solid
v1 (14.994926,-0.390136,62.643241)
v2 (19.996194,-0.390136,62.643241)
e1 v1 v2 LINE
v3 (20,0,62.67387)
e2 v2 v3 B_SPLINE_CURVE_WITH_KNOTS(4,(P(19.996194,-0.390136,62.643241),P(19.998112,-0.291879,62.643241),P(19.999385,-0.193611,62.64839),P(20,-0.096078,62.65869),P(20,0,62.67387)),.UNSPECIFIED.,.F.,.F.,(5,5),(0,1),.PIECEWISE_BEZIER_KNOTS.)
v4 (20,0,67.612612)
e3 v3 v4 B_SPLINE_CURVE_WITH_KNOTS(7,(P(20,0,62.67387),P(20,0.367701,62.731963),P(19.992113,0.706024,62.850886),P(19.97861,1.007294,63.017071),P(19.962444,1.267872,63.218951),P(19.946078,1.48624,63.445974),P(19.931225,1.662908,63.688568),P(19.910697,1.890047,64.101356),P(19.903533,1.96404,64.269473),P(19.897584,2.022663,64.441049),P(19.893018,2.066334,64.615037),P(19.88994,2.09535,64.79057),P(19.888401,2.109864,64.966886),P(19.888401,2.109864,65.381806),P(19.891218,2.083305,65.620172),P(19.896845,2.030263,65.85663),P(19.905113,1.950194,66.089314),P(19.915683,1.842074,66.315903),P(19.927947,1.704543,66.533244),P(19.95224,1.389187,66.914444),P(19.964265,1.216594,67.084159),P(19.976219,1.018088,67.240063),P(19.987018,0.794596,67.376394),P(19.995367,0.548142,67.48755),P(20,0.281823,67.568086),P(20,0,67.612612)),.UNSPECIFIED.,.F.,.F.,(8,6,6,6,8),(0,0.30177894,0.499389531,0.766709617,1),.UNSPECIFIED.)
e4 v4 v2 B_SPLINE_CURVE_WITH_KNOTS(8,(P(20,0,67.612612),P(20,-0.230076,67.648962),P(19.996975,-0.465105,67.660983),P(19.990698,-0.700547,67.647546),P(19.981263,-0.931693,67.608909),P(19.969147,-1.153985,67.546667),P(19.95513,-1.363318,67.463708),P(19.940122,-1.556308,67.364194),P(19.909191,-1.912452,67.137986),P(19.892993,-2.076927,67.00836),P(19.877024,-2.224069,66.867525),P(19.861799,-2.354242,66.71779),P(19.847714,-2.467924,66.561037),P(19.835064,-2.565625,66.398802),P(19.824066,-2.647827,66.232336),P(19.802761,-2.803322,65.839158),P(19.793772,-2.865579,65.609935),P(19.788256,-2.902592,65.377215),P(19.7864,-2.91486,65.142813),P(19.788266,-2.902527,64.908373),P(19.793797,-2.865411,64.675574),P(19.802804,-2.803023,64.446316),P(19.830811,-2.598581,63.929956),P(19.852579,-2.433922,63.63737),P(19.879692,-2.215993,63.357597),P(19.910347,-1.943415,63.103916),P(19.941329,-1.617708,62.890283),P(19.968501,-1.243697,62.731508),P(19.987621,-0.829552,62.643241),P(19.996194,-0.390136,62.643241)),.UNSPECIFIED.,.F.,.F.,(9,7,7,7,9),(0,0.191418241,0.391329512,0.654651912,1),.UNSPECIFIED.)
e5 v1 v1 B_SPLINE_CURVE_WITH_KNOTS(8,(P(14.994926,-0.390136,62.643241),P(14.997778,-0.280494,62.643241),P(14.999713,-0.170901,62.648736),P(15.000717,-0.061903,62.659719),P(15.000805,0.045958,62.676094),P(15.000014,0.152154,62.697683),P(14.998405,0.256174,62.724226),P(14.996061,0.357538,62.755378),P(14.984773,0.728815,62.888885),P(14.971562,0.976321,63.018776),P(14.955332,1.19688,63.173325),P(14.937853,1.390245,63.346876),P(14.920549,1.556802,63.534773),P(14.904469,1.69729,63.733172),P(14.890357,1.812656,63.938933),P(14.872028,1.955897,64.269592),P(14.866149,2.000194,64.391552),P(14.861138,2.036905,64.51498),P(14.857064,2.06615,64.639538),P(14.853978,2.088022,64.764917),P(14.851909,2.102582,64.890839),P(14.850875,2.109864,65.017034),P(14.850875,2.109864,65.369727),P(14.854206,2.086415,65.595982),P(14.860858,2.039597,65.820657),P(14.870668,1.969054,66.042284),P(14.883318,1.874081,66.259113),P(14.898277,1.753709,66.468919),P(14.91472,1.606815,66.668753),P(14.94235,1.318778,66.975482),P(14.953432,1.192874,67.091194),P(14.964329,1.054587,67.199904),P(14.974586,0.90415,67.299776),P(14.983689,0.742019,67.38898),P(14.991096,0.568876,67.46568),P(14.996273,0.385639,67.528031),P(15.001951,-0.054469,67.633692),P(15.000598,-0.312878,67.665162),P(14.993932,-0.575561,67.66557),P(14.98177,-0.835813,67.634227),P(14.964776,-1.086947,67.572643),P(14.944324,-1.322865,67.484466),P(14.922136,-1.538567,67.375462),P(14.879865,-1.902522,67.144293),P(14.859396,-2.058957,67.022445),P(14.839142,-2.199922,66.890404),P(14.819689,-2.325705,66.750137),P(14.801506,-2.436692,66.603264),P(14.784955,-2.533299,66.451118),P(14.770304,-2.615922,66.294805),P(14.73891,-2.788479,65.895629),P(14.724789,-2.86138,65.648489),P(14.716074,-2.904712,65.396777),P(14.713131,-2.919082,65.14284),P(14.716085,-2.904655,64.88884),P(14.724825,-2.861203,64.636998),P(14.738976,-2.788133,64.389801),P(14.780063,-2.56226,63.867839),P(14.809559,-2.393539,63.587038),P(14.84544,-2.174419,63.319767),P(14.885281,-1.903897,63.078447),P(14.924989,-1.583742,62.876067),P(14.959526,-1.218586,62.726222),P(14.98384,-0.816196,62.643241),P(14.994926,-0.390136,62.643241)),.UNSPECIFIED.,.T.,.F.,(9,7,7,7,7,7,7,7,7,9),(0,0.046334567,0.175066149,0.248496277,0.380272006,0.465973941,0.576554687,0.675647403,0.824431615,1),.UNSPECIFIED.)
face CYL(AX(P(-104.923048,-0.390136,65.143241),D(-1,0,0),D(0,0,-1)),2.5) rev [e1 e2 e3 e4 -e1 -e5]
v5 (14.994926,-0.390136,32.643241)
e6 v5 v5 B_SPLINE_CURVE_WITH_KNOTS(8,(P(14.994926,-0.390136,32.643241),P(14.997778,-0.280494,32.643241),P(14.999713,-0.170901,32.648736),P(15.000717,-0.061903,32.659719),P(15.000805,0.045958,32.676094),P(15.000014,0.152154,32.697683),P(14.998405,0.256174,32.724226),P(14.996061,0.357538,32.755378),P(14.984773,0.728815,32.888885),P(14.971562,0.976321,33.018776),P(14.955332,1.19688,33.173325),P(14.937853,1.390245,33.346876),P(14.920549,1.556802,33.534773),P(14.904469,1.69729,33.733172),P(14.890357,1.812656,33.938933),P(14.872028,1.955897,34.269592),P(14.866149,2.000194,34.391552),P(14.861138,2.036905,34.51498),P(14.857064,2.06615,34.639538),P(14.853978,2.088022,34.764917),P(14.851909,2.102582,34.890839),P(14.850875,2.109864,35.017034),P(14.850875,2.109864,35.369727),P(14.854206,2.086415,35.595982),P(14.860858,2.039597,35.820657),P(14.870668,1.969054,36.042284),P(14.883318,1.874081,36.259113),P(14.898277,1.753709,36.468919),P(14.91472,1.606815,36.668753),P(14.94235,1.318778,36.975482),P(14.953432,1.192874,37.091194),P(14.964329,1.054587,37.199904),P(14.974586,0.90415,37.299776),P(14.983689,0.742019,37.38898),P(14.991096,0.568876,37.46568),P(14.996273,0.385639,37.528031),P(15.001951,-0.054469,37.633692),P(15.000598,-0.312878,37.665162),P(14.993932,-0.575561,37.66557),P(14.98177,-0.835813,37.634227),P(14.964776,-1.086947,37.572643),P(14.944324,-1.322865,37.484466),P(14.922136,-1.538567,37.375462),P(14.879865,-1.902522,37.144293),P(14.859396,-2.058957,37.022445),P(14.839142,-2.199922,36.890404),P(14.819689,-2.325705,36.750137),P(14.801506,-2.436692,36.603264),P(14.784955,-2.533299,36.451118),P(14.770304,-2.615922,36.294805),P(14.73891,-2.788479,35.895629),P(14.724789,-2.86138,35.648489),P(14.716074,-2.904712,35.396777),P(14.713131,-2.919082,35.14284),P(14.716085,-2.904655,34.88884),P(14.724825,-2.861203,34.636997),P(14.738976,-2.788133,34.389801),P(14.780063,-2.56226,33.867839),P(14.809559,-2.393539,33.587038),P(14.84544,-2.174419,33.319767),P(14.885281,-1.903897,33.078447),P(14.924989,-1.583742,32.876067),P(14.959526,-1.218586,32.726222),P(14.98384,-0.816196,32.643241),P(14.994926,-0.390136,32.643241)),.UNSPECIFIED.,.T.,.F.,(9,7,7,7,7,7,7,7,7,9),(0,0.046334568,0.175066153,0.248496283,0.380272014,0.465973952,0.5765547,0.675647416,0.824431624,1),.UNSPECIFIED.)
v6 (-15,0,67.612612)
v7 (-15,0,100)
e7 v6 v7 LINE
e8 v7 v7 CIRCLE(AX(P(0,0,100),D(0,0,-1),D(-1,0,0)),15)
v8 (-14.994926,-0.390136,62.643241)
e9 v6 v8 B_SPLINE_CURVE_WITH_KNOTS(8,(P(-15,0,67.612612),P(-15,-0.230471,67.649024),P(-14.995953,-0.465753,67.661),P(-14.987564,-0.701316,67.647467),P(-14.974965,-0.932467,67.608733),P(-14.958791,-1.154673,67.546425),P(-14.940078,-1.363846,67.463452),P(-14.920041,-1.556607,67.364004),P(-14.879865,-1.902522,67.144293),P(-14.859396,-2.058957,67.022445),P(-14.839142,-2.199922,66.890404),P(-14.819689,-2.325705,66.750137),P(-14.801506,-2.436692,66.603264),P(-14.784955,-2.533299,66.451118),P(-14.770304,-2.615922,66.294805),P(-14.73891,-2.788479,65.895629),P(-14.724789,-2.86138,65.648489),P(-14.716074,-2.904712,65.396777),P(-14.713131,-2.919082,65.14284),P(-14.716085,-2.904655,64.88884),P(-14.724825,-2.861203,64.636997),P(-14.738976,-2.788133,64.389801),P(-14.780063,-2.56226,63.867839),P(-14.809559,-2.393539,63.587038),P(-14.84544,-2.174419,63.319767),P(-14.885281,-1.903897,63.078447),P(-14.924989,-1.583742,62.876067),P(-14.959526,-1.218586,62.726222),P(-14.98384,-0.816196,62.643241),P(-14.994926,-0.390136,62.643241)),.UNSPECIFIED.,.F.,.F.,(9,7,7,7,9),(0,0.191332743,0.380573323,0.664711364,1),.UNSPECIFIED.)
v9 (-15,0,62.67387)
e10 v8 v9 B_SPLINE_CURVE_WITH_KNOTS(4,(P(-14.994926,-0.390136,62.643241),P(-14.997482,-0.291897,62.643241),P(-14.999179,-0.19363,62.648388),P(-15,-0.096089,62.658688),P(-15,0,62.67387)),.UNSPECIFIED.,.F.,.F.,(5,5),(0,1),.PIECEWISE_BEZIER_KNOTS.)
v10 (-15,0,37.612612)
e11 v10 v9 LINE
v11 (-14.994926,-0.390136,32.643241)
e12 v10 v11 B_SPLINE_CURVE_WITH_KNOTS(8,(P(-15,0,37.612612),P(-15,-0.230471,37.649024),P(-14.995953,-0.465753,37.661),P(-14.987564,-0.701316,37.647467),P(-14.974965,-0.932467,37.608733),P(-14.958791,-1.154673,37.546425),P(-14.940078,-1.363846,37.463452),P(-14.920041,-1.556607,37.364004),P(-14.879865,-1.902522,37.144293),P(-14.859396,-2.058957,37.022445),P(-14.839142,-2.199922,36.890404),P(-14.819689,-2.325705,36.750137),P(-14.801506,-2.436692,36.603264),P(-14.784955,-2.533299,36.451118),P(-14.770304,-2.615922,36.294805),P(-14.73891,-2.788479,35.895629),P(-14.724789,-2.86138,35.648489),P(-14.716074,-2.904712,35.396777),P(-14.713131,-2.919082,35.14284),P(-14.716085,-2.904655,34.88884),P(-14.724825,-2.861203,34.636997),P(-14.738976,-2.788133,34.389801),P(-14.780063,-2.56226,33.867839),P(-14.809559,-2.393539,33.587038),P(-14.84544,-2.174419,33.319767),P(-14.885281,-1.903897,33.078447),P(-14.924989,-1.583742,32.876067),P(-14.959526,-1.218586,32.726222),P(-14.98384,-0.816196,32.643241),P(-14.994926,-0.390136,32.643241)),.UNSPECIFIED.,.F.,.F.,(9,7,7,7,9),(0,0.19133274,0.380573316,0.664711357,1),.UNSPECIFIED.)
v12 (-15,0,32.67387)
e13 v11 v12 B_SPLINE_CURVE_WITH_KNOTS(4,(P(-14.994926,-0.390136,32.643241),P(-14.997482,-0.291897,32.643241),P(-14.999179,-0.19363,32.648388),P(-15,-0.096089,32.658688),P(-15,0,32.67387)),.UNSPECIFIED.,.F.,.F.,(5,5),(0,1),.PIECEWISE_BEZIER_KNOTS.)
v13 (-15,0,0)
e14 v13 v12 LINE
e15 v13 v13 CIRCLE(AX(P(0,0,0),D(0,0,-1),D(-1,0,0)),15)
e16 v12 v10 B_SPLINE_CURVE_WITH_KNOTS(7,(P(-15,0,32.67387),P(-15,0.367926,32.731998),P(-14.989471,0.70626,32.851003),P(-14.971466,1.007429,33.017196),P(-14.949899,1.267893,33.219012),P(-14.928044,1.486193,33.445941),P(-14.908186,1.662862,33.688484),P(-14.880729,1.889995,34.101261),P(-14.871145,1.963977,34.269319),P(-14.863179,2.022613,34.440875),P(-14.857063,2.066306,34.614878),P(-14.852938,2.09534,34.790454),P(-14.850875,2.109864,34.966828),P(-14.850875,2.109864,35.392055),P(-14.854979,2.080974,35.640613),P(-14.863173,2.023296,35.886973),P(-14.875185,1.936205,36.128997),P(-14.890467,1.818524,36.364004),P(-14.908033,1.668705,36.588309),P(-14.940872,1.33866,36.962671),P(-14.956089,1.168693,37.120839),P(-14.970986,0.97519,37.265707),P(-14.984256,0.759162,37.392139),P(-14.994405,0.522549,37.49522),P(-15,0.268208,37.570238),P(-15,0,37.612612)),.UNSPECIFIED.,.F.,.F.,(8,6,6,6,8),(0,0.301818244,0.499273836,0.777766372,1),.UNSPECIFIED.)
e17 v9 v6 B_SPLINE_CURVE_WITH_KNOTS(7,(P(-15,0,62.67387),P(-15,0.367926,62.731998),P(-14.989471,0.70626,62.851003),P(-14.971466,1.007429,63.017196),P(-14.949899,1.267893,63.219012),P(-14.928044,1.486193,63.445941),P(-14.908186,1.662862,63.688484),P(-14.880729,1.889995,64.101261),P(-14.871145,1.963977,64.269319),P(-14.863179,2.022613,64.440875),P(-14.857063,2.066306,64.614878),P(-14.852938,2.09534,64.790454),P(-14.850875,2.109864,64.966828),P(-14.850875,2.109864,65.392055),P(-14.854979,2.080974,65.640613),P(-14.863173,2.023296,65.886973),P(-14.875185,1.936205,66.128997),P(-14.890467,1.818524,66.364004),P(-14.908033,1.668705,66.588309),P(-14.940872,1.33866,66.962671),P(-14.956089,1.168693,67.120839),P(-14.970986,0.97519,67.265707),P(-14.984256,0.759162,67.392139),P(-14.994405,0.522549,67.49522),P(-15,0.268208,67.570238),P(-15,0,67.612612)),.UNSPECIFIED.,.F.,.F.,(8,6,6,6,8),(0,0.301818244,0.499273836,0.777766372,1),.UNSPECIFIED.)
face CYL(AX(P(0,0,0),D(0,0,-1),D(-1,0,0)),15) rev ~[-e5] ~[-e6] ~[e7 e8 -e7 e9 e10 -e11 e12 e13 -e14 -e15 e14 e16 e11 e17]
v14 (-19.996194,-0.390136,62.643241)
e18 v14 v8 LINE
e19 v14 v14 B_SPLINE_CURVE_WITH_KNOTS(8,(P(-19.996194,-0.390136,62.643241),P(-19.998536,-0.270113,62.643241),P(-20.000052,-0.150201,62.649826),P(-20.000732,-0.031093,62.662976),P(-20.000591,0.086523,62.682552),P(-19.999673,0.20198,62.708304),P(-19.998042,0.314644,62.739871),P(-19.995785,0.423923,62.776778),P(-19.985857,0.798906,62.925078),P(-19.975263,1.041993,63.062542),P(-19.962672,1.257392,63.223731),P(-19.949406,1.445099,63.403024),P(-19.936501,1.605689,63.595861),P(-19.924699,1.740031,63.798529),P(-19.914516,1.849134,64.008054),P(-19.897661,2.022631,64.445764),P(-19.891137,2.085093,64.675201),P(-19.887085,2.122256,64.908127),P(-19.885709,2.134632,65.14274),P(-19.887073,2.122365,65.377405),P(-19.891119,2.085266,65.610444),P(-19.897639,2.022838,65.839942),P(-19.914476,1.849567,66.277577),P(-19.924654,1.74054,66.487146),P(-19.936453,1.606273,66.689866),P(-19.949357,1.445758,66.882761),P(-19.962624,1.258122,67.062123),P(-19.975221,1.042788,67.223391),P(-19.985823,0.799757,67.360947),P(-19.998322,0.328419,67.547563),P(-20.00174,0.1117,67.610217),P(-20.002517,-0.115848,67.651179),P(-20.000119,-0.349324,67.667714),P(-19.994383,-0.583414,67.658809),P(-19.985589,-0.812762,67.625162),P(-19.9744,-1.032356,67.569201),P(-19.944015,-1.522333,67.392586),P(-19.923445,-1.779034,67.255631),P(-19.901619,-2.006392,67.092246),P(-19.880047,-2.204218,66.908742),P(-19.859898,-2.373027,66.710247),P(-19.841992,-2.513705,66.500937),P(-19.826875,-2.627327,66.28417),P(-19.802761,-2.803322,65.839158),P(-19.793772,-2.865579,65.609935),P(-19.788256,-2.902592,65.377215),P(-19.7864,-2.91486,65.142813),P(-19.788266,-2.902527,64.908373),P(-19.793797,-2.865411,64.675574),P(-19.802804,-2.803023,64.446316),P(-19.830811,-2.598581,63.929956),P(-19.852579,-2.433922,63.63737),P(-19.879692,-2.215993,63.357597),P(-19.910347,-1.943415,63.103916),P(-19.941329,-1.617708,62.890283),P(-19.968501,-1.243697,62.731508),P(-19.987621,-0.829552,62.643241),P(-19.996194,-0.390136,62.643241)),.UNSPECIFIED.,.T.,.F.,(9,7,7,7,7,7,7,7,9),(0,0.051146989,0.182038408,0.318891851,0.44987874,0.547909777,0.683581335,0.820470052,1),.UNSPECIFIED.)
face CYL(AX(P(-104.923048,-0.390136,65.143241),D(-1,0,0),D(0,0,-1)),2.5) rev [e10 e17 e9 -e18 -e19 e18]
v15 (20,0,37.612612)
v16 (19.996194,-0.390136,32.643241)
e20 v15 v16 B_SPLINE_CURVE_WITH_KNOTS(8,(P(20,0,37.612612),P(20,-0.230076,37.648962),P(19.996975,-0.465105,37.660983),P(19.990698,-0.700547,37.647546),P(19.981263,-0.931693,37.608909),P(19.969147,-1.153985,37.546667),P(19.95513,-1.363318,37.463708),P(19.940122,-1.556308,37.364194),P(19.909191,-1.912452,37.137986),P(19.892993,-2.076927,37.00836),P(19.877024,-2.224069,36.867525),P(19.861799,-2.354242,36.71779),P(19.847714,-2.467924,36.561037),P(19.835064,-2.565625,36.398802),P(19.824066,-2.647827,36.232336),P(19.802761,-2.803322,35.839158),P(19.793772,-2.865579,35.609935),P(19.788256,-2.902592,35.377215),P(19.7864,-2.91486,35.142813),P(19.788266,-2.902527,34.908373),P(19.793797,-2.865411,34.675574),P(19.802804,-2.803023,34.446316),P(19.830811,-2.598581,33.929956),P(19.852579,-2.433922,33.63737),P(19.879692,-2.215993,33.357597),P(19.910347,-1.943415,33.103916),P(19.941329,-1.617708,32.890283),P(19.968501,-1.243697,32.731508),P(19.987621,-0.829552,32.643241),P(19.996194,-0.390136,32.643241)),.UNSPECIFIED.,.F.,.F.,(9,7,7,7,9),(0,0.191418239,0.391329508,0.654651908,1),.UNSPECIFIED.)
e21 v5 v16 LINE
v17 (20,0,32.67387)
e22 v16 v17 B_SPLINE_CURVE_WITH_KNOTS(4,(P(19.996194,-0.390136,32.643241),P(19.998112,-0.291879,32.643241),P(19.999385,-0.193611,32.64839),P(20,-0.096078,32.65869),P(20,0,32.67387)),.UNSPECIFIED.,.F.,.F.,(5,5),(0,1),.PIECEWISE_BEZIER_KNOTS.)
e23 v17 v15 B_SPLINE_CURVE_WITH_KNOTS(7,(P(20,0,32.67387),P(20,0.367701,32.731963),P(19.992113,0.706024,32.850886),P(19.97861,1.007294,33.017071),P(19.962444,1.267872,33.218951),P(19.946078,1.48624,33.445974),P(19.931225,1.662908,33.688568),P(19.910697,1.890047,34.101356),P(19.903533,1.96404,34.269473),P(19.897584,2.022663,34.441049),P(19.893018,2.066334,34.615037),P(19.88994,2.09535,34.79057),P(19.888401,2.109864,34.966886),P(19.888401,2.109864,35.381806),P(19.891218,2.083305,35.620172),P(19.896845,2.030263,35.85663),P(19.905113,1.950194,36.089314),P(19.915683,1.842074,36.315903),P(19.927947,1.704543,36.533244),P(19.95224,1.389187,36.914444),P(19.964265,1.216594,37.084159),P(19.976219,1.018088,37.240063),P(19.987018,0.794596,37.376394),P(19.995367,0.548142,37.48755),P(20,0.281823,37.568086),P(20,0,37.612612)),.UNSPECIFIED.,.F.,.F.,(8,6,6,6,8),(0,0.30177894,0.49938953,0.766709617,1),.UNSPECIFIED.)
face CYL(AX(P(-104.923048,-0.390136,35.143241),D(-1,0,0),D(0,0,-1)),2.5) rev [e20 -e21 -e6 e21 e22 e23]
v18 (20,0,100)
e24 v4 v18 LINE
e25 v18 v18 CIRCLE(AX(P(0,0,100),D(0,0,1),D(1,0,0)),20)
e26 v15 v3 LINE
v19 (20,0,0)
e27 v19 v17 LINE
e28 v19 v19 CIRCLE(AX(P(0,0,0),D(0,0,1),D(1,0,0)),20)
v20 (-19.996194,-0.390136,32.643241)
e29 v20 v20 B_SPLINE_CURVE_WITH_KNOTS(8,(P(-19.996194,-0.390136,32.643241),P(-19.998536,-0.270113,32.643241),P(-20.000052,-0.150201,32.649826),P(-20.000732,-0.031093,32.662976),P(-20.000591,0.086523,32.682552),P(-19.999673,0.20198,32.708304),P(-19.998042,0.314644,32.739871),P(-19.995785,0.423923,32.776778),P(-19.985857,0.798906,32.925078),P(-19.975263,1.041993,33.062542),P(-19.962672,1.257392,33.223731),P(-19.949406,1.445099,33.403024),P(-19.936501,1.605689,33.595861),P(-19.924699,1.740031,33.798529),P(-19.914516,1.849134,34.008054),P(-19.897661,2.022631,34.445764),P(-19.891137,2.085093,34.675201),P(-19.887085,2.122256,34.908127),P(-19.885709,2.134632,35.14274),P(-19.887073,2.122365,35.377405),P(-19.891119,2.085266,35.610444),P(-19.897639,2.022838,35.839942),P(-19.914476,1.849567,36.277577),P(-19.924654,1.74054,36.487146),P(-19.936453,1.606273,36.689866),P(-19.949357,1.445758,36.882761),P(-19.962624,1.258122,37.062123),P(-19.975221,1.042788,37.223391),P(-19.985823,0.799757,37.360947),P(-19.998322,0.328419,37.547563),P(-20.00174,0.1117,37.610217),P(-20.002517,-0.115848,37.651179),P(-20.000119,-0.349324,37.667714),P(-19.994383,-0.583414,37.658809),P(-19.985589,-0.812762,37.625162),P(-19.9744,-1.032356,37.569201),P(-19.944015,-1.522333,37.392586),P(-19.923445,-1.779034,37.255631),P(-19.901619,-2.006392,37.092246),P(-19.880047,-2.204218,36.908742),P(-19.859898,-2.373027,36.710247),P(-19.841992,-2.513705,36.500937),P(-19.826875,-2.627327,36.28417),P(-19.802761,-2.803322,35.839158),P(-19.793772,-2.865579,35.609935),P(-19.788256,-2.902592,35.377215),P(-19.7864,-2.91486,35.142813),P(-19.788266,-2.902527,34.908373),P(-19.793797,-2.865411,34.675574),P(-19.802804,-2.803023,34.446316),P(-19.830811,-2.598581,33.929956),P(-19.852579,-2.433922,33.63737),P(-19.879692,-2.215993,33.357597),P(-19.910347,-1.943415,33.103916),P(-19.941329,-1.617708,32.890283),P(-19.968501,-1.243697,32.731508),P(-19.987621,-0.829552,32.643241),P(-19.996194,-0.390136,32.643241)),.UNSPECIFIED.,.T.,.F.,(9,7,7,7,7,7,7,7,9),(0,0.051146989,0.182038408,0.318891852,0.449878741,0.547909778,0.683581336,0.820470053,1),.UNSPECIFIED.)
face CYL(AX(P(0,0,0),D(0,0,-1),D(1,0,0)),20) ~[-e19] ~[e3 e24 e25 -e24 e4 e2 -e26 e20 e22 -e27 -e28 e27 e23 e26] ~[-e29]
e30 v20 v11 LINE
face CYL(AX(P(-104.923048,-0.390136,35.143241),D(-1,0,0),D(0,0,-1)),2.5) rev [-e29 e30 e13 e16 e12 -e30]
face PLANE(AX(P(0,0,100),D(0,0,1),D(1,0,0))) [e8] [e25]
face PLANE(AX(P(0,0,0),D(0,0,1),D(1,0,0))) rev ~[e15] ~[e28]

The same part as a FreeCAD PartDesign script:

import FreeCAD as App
import Part
import Sketcher
from FreeCAD import Vector
Q = App.Units.Quantity

doc = App.newDocument("Part")
body = doc.addObject("PartDesign::Body", "Body")

sketch1 = body.newObject("Sketcher::SketchObject", "Sketch")
sketch1.AttachmentSupport = (doc.getObject("XY_Plane"), [""])
sketch1.MapMode = "FlatFace"
sketch1.addGeometry(Part.Circle(Vector(0, 0, 0), Vector(0, 0, 1), 20), False)
sketch1.addConstraint(Sketcher.Constraint("Coincident", 0, 3, -1, 1))
sketch1.addConstraint(Sketcher.Constraint("Diameter", 0, Q("40 mm")))
pad1 = body.newObject("PartDesign::Pad", "Pad")
pad1.Profile = sketch1
pad1.Length = 100

sketch2 = body.newObject("Sketcher::SketchObject", "Sketch001")
sketch2.AttachmentSupport = (doc.getObject("XY_Plane"), [""])
sketch2.MapMode = "FlatFace"
sketch2.addGeometry(Part.Circle(Vector(0, 0, 0), Vector(0, 0, 1), 15), False)
sketch2.addConstraint(Sketcher.Constraint("Coincident", 0, 3, -1, 1))
sketch2.addConstraint(Sketcher.Constraint("Diameter", 0, Q("30 mm")))
pocket1 = body.newObject("PartDesign::Pocket", "Pocket")
pocket1.Profile = sketch2
pocket1.Length = 100
pocket1.Reversed = True

sketch3 = body.newObject("Sketcher::SketchObject", "Sketch002")
sketch3.AttachmentSupport = (doc.getObject("YZ_Plane"), [""])
sketch3.MapMode = "FlatFace"
sketch3.addGeometry(Part.Circle(Vector(-0.4, 65.1, 0), Vector(0, 0, 1), 2.5), False)
sketch3.addGeometry(Part.Circle(Vector(-0.4, 35.1, 0), Vector(0, 0, 1), 2.5), False)
sketch3.addConstraint(Sketcher.Constraint("Equal", 0, 1))
sketch3.addConstraint(Sketcher.Constraint("Vertical", 0, 3, 1, 3))
sketch3.addConstraint(Sketcher.Constraint("Diameter", 0, Q("5 mm")))
sketch3.addConstraint(Sketcher.Constraint("DistanceY", 1, 3, 0, 3, Q("30 mm")))
sketch3.addConstraint(Sketcher.Constraint("DistanceY", -1, 1, 0, 3, Q("65.143241 mm")))
sketch3.addConstraint(Sketcher.Constraint("DistanceX", 0, 3, -1, 1, Q("0.390136 mm")))
pocket2 = body.newObject("PartDesign::Pocket", "Pocket001")
pocket2.Profile = sketch3
pocket2.Type = "ThroughAll"
pocket2.Midplane = True

doc.recompute()
